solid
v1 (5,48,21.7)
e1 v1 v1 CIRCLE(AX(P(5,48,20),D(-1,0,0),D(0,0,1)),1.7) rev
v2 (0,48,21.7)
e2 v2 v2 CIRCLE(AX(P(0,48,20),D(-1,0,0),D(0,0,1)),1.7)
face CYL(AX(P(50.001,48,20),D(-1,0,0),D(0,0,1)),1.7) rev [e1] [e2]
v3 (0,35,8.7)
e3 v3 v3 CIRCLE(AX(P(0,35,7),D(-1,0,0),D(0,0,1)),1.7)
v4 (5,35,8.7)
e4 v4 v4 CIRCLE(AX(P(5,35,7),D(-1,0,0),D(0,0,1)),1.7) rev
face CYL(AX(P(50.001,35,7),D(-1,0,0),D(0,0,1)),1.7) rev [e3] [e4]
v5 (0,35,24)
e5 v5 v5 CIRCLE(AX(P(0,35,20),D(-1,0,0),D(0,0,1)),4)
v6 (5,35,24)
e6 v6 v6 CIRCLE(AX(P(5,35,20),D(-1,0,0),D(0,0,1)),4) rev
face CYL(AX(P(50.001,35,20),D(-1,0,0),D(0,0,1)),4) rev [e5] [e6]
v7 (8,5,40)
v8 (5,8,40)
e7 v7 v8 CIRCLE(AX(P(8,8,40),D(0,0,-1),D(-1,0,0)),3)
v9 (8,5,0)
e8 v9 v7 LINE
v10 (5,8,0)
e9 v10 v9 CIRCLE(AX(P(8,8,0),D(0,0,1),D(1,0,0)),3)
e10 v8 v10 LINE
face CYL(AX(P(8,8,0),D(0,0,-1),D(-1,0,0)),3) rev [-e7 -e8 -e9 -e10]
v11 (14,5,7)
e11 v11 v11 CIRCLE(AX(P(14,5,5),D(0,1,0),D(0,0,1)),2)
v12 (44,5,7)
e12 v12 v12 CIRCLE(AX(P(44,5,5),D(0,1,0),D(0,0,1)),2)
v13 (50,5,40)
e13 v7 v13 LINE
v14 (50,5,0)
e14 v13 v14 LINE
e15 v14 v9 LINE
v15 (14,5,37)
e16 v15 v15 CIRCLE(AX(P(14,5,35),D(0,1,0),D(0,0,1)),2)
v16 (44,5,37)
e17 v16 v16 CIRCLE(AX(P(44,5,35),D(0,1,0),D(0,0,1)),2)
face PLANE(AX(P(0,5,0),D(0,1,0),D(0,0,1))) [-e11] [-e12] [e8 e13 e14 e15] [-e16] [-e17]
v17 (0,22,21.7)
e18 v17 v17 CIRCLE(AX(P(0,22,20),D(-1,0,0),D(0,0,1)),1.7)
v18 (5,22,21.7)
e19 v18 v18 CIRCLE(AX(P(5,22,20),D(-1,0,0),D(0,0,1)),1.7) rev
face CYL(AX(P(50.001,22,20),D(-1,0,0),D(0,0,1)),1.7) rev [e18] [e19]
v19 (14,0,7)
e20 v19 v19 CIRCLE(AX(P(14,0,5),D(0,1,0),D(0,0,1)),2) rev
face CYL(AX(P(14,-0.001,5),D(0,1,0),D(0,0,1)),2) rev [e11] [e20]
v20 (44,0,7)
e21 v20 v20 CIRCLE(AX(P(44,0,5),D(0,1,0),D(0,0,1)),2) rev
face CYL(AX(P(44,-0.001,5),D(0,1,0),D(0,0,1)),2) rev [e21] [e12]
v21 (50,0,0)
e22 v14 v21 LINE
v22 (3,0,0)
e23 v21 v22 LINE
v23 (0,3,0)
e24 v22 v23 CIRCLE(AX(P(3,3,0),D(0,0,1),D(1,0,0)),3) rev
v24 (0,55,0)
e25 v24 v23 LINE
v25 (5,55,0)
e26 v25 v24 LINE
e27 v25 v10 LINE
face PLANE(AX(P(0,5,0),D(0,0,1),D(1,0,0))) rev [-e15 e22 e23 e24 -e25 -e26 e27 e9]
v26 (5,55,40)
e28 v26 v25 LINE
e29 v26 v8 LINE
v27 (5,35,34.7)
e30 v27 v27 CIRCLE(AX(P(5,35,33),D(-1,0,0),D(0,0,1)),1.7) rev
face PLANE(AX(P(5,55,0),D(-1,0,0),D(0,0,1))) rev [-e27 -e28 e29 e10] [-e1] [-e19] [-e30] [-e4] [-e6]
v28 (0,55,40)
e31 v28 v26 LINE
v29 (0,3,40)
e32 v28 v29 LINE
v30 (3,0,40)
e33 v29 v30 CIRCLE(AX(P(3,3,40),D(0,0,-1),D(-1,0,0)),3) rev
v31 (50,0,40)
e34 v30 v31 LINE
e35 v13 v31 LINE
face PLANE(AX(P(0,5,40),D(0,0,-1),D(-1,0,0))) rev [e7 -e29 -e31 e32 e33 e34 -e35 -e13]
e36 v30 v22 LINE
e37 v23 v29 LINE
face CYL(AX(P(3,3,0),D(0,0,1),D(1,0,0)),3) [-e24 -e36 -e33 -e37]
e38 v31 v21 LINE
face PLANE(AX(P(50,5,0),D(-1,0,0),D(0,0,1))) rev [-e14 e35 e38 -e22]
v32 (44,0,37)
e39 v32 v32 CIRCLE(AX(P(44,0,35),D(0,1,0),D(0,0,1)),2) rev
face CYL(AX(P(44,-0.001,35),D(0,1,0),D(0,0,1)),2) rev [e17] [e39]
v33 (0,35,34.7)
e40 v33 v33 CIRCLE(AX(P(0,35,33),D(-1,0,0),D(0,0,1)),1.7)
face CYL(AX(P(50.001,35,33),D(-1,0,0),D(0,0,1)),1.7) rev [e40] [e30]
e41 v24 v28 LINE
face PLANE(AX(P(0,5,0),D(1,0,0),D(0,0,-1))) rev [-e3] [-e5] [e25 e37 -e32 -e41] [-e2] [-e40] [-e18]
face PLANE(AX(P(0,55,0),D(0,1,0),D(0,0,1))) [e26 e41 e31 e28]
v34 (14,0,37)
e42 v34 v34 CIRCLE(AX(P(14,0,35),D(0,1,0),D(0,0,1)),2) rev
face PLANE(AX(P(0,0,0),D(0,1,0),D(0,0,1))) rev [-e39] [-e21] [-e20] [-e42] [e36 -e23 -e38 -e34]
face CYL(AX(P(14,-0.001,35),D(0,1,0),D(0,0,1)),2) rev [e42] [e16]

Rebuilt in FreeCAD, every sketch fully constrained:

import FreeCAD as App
import Part
import Sketcher
from FreeCAD import Vector


def edges_at(feature, points):
    """Names of the edges that pass closest to the given points."""
    edges = feature.Shape.Edges
    near = lambda p: min(range(len(edges)), key=lambda i: edges[i].distToShape(Part.Vertex(*p))[0])
    return sorted({f"Edge{near(p) + 1}" for p in points})

doc = App.newDocument("Part")
body = doc.addObject("PartDesign::Body", "Body")

sketch1 = body.newObject("Sketcher::SketchObject", "Sketch")
sketch1.AttachmentSupport = (doc.getObject("XZ_Plane"), [""])
sketch1.MapMode = "FlatFace"
sketch1.addGeometry(Part.LineSegment(Vector(0, 0, 0), Vector(0, 40, 0)), False)
sketch1.addGeometry(Part.LineSegment(Vector(0, 40, 0), Vector(50, 40, 0)), False)
sketch1.addGeometry(Part.LineSegment(Vector(50, 40, 0), Vector(50, 0, 0)), False)
sketch1.addGeometry(Part.LineSegment(Vector(50, 0, 0), Vector(0, 0, 0)), False)
sketch1.addConstraint(Sketcher.Constraint("Coincident", 0, 2, 1, 1))
sketch1.addConstraint(Sketcher.Constraint("Coincident", 1, 2, 2, 1))
sketch1.addConstraint(Sketcher.Constraint("Coincident", 2, 2, 3, 1))
sketch1.addConstraint(Sketcher.Constraint("Coincident", 3, 2, 0, 1))
sketch1.addConstraint(Sketcher.Constraint("Vertical", 0))
sketch1.addConstraint(Sketcher.Constraint("Horizontal", 1))
sketch1.addConstraint(Sketcher.Constraint("Vertical", 2))
sketch1.addConstraint(Sketcher.Constraint("Horizontal", 3))
sketch1.addConstraint(Sketcher.Constraint("Coincident", 3, 2, -1, 1))
sketch1.addConstraint(Sketcher.Constraint("DistanceX", 1, 1, 1, 2, 50.0))
sketch1.addConstraint(Sketcher.Constraint("DistanceY", 0, 1, 0, 2, 40.0))
pad1 = body.newObject("PartDesign::Pad", "Pad")
pad1.Profile = sketch1
pad1.Length = 5
pad1.Reversed = True

sketch2 = body.newObject("Sketcher::SketchObject", "Sketch001")
sketch2.AttachmentSupport = (doc.getObject("XZ_Plane"), [""])
sketch2.MapMode = "FlatFace"
sketch2.AttachmentOffset = App.Placement(Vector(0, 0, -5), App.Rotation())
sketch2.addGeometry(Part.LineSegment(Vector(0, 0, 0), Vector(0, 40, 0)), False)
sketch2.addGeometry(Part.LineSegment(Vector(0, 40, 0), Vector(5, 40, 0)), False)
sketch2.addGeometry(Part.LineSegment(Vector(5, 40, 0), Vector(5, 0, 0)), False)
sketch2.addGeometry(Part.LineSegment(Vector(5, 0, 0), Vector(0, 0, 0)), False)
sketch2.addConstraint(Sketcher.Constraint("Coincident", 0, 2, 1, 1))
sketch2.addConstraint(Sketcher.Constraint("Coincident", 1, 2, 2, 1))
sketch2.addConstraint(Sketcher.Constraint("Coincident", 2, 2, 3, 1))
sketch2.addConstraint(Sketcher.Constraint("Coincident", 3, 2, 0, 1))
sketch2.addConstraint(Sketcher.Constraint("Vertical", 0))
sketch2.addConstraint(Sketcher.Constraint("Horizontal", 1))
sketch2.addConstraint(Sketcher.Constraint("Vertical", 2))
sketch2.addConstraint(Sketcher.Constraint("Horizontal", 3))
sketch2.addConstraint(Sketcher.Constraint("Coincident", 3, 2, -1, 1))
sketch2.addConstraint(Sketcher.Constraint("DistanceX", 1, 1, 1, 2, 5.0))
sketch2.addConstraint(Sketcher.Constraint("DistanceY", 0, 1, 0, 2, 40.0))
pad2 = body.newObject("PartDesign::Pad", "Pad001")
pad2.Profile = sketch2
pad2.Length = 50
pad2.Reversed = True
doc.recompute()

fillet = body.newObject("PartDesign::Fillet", "Fillet")
fillet.Base = (pad2, edges_at(pad2, [(5, 5, 20), (0, 0, 20)]))
fillet.Radius = 3

sketch3 = body.newObject("Sketcher::SketchObject", "Sketch002")
sketch3.AttachmentSupport = (doc.getObject("YZ_Plane"), [""])
sketch3.MapMode = "FlatFace"
sketch3.addGeometry(Part.Circle(Vector(35, 20, 0), Vector(0, 0, 1), 4), False)
sketch3.addConstraint(Sketcher.Constraint("Diameter", 0, 8.0))
sketch3.addConstraint(Sketcher.Constraint("DistanceX", -1, 1, 0, 3, 35.0))
sketch3.addConstraint(Sketcher.Constraint("DistanceY", -1, 1, 0, 3, 20.0))
pocket1 = body.newObject("PartDesign::Pocket", "Pocket")
pocket1.Profile = sketch3
pocket1.Type = "UpToFirst"
pocket1.Reversed = True

sketch4 = body.newObject("Sketcher::SketchObject", "Sketch003")
sketch4.AttachmentSupport = (doc.getObject("YZ_Plane"), [""])
sketch4.MapMode = "FlatFace"
sketch4.addGeometry(Part.Circle(Vector(35, 7, 0), Vector(0, 0, 1), 1.7), False)
sketch4.addConstraint(Sketcher.Constraint("Diameter", 0, 3.4))
sketch4.addConstraint(Sketcher.Constraint("DistanceX", -1, 1, 0, 3, 35.0))
sketch4.addConstraint(Sketcher.Constraint("DistanceY", -1, 1, 0, 3, 7.0))
pocket2 = body.newObject("PartDesign::Pocket", "Pocket001")
pocket2.Profile = sketch4
pocket2.Type = "UpToFirst"
pocket2.Reversed = True

sketch5 = body.newObject("Sketcher::SketchObject", "Sketch004")
sketch5.AttachmentSupport = (doc.getObject("YZ_Plane"), [""])
sketch5.MapMode = "FlatFace"
sketch5.addGeometry(Part.Circle(Vector(35, 33, 0), Vector(0, 0, 1), 1.7), False)
sketch5.addConstraint(Sketcher.Constraint("Diameter", 0, 3.4))
sketch5.addConstraint(Sketcher.Constraint("DistanceX", -1, 1, 0, 3, 35.0))
sketch5.addConstraint(Sketcher.Constraint("DistanceY", -1, 1, 0, 3, 33.0))
pocket3 = body.newObject("PartDesign::Pocket", "Pocket002")
pocket3.Profile = sketch5
pocket3.Type = "UpToFirst"
pocket3.Reversed = True

sketch6 = body.newObject("Sketcher::SketchObject", "Sketch005")
sketch6.AttachmentSupport = (doc.getObject("YZ_Plane"), [""])
sketch6.MapMode = "FlatFace"
sketch6.addGeometry(Part.Circle(Vector(48, 20, 0), Vector(0, 0, 1), 1.7), False)
sketch6.addConstraint(Sketcher.Constraint("Diameter", 0, 3.4))
sketch6.addConstraint(Sketcher.Constraint("DistanceX", -1, 1, 0, 3, 48.0))
sketch6.addConstraint(Sketcher.Constraint("DistanceY", -1, 1, 0, 3, 20.0))
pocket4 = body.newObject("PartDesign::Pocket", "Pocket003")
pocket4.Profile = sketch6
pocket4.Type = "UpToFirst"
pocket4.Reversed = True

sketch7 = body.newObject("Sketcher::SketchObject", "Sketch006")
sketch7.AttachmentSupport = (doc.getObject("YZ_Plane"), [""])
sketch7.MapMode = "FlatFace"
sketch7.addGeometry(Part.Circle(Vector(22, 20, 0), Vector(0, 0, 1), 1.7), False)
sketch7.addConstraint(Sketcher.Constraint("Diameter", 0, 3.4))
sketch7.addConstraint(Sketcher.Constraint("DistanceX", -1, 1, 0, 3, 22.0))
sketch7.addConstraint(Sketcher.Constraint("DistanceY", -1, 1, 0, 3, 20.0))
pocket5 = body.newObject("PartDesign::Pocket", "Pocket004")
pocket5.Profile = sketch7
pocket5.Type = "UpToFirst"
pocket5.Reversed = True

sketch8 = body.newObject("Sketcher::SketchObject", "Sketch007")
sketch8.AttachmentSupport = (doc.getObject("XZ_Plane"), [""])
sketch8.MapMode = "FlatFace"
sketch8.AttachmentOffset = App.Placement(Vector(0, 0, -5), App.Rotation())
sketch8.addGeometry(Part.Circle(Vector(14, 5, 0), Vector(0, 0, 1), 2), False)
sketch8.addConstraint(Sketcher.Constraint("Diameter", 0, 4.0))
sketch8.addConstraint(Sketcher.Constraint("DistanceX", -1, 1, 0, 3, 14.0))
sketch8.addConstraint(Sketcher.Constraint("DistanceY", -1, 1, 0, 3, 5.0))
pocket6 = body.newObject("PartDesign::Pocket", "Pocket005")
pocket6.Profile = sketch8
pocket6.Type = "UpToFirst"
pocket6.Reversed = True

sketch9 = body.newObject("Sketcher::SketchObject", "Sketch008")
sketch9.AttachmentSupport = (doc.getObject("XZ_Plane"), [""])
sketch9.MapMode = "FlatFace"
sketch9.AttachmentOffset = App.Placement(Vector(0, 0, -5), App.Rotation())
sketch9.addGeometry(Part.Circle(Vector(14, 35, 0), Vector(0, 0, 1), 2), False)
sketch9.addConstraint(Sketcher.Constraint("Diameter", 0, 4.0))
sketch9.addConstraint(Sketcher.Constraint("DistanceX", -1, 1, 0, 3, 14.0))
sketch9.addConstraint(Sketcher.Constraint("DistanceY", -1, 1, 0, 3, 35.0))
pocket7 = body.newObject("PartDesign::Pocket", "Pocket006")
pocket7.Profile = sketch9
pocket7.Type = "UpToFirst"
pocket7.Reversed = True

sketch10 = body.newObject("Sketcher::SketchObject", "Sketch009")
sketch10.AttachmentSupport = (doc.getObject("XZ_Plane"), [""])
sketch10.MapMode = "FlatFace"
sketch10.AttachmentOffset = App.Placement(Vector(0, 0, -5), App.Rotation())
sketch10.addGeometry(Part.Circle(Vector(44, 5, 0), Vector(0, 0, 1), 2), False)
sketch10.addConstraint(Sketcher.Constraint("Diameter", 0, 4.0))
sketch10.addConstraint(Sketcher.Constraint("DistanceX", -1, 1, 0, 3, 44.0))
sketch10.addConstraint(Sketcher.Constraint("DistanceY", -1, 1, 0, 3, 5.0))
pocket8 = body.newObject("PartDesign::Pocket", "Pocket007")
pocket8.Profile = sketch10
pocket8.Type = "UpToFirst"
pocket8.Reversed = True

sketch11 = body.newObject("Sketcher::SketchObject", "Sketch010")
sketch11.AttachmentSupport = (doc.getObject("XZ_Plane"), [""])
sketch11.MapMode = "FlatFace"
sketch11.AttachmentOffset = App.Placement(Vector(0, 0, -5), App.Rotation())
sketch11.addGeometry(Part.Circle(Vector(44, 35, 0), Vector(0, 0, 1), 2), False)
sketch11.addConstraint(Sketcher.Constraint("Diameter", 0, 4.0))
sketch11.addConstraint(Sketcher.Constraint("DistanceX", -1, 1, 0, 3, 44.0))
sketch11.addConstraint(Sketcher.Constraint("DistanceY", -1, 1, 0, 3, 35.0))
pocket9 = body.newObject("PartDesign::Pocket", "Pocket008")
pocket9.Profile = sketch11
pocket9.Type = "UpToFirst"
pocket9.Reversed = True

doc.recompute()
